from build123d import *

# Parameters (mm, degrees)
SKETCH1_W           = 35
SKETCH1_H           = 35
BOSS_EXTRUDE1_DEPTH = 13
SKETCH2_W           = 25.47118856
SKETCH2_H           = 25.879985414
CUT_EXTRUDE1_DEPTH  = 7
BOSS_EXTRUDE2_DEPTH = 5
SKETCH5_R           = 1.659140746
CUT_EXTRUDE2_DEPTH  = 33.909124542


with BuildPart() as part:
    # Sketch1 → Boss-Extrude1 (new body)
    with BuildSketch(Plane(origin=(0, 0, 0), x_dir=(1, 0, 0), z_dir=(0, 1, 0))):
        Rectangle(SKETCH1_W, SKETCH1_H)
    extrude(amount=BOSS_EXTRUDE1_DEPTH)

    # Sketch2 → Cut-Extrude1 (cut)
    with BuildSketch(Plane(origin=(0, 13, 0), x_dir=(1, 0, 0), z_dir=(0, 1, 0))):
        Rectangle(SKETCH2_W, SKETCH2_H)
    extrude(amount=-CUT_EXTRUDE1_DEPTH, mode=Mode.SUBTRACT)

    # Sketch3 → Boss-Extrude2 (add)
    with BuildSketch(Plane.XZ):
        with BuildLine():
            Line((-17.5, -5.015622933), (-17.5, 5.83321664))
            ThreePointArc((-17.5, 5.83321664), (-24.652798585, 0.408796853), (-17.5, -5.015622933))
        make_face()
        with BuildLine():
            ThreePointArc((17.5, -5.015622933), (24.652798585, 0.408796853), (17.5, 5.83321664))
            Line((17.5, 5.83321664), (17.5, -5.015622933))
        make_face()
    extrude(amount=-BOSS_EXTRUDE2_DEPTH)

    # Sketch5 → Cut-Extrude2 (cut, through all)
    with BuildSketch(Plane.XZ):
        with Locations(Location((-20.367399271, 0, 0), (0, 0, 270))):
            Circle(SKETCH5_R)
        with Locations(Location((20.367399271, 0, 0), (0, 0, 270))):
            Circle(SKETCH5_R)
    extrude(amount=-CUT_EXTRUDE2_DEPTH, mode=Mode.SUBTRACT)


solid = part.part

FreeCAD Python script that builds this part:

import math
import FreeCAD as App
import Part
import Sketcher

V = App.Vector
Q = App.Units.Quantity


def add_polygon(sketch, points):
    """Adds a closed chain of lines whose ends are joined by coincident constraints."""
    first, n = sketch.GeometryCount, len(points)
    for a, b in zip(points, points[1:] + points[:1]):
        sketch.addGeometry(Part.LineSegment(App.Vector(*a, 0), App.Vector(*b, 0)), False)
    for i in range(n):
        sketch.addConstraint(Sketcher.Constraint("Coincident", first + i, 2, first + (i + 1) % n, 1))

doc = App.newDocument("Part")
body = doc.addObject("PartDesign::Body", "Body")

# Sketch on XZ plane
sketch1 = body.newObject("Sketcher::SketchObject", "Sketch")
sketch1.AttachmentSupport = (doc.getObject("XZ_Plane"), [""])
sketch1.MapMode = "FlatFace"
add_polygon(sketch1, [(-17.5, -17.5), (-17.5, 17.5), (17.5, 17.5), (17.5, -17.5)])  # lines 0-3
sketch1.addConstraint([
    Sketcher.Constraint("Vertical", 0),
    Sketcher.Constraint("Horizontal", 1),
    Sketcher.Constraint("Vertical", 2),
    Sketcher.Constraint("Horizontal", 3),
    Sketcher.Constraint("Symmetric", 0, 2, 2, 2, -1, 1),
    Sketcher.Constraint("Equal", 3, 0),
    Sketcher.Constraint("DistanceX", 1, 1, 1, 2, Q("35 mm")),
])
pad1 = body.newObject("PartDesign::Pad", "Pad")
pad1.Profile = sketch1
pad1.Length = 13
pad1.Reversed = True

# Sketch on XZ plane
sketch2 = body.newObject("Sketcher::SketchObject", "Sketch001")
sketch2.AttachmentSupport = (doc.getObject("XZ_Plane"), [""])
sketch2.MapMode = "FlatFace"
sketch2.AttachmentOffset = App.Placement(V(0, 0, -13), App.Rotation())
add_polygon(sketch2, [(-12.735594, -12.939993), (-12.735594, 12.939993), (12.735594, 12.939993), (12.735594, -12.939993)])  # lines 0-3
sketch2.addConstraint([
    Sketcher.Constraint("Vertical", 0),
    Sketcher.Constraint("Horizontal", 1),
    Sketcher.Constraint("Vertical", 2),
    Sketcher.Constraint("Horizontal", 3),
    Sketcher.Constraint("Symmetric", 0, 2, 2, 2, -1, 1),
    Sketcher.Constraint("DistanceX", 1, 1, 1, 2, Q("25.471189 mm")),
    Sketcher.Constraint("DistanceY", 0, 1, 0, 2, Q("25.879985 mm")),
])
pocket1 = body.newObject("PartDesign::Pocket", "Pocket")
pocket1.Profile = sketch2
pocket1.Length = 7
pocket1.Reversed = True

# Sketch on XZ plane
sketch3 = body.newObject("Sketcher::SketchObject", "Sketch002")
sketch3.AttachmentSupport = (doc.getObject("XZ_Plane"), [""])
sketch3.MapMode = "FlatFace"
sketch3.addGeometry([
    Part.LineSegment(V(-17.5, -5.015623, 0), V(-17.5, 5.833217, 0)),
    Part.ArcOfCircle(Part.Circle(V(-19.019559, 0.408797, 0), V(0, 0, 1), 5.63324), math.radians(74.350688), math.radians(285.649312)),
    Part.ArcOfCircle(Part.Circle(V(19.019559, 0.408797, 0), V(0, 0, 1), 5.63324), math.radians(-105.649312), math.radians(105.649312)),
    Part.LineSegment(V(17.5, 5.833217, 0), V(17.5, -5.015623, 0)),
], False)
sketch3.addConstraint([
    Sketcher.Constraint("Coincident", 0, 1, 1, 2),
    Sketcher.Constraint("Coincident", 1, 1, 0, 2),
    Sketcher.Constraint("Coincident", 2, 1, 3, 2),
    Sketcher.Constraint("Coincident", 3, 1, 2, 2),
    Sketcher.Constraint("Vertical", 0),
    Sketcher.Constraint("Vertical", 3),
    Sketcher.Constraint("Equal", 1, 2),
    Sketcher.Constraint("Symmetric", 1, 3, 2, 3, -2),
    Sketcher.Constraint("Horizontal", 0, 1, 2, 1),
    Sketcher.Constraint("DistanceX", 0, 1, 2, 1, Q("35 mm")),
    Sketcher.Constraint("Radius", 1, Q("5.63324 mm")),
    Sketcher.Constraint("DistanceY", 0, 1, 0, 2, Q("10.84884 mm")),
    Sketcher.Constraint("DistanceY", -1, 1, 1, 3, Q("0.408797 mm")),
])
pad2 = body.newObject("PartDesign::Pad", "Pad001")
pad2.Profile = sketch3
pad2.Length = 5
pad2.Reversed = True

# Sketch on XZ plane
sketch4 = body.newObject("Sketcher::SketchObject", "Sketch003")
sketch4.AttachmentSupport = (doc.getObject("XZ_Plane"), [""])
sketch4.MapMode = "FlatFace"
sketch4.addGeometry([
    Part.Circle(V(-20.367399, 0, 0), V(0, 0, 1), 1.659141),
    Part.Circle(V(20.367399, 0, 0), V(0, 0, 1), 1.659141),
], False)
sketch4.addConstraint([
    Sketcher.Constraint("Equal", 0, 1),
    Sketcher.Constraint("Symmetric", 0, 3, 1, 3, -1, 1),
    Sketcher.Constraint("PointOnObject", 0, 3, -1),
    Sketcher.Constraint("Diameter", 0, Q("3.318281 mm")),
    Sketcher.Constraint("DistanceX", 0, 3, -1, 1, Q("20.367399 mm")),
])
pocket2 = body.newObject("PartDesign::Pocket", "Pocket001")
pocket2.Profile = sketch4
pocket2.Type = "ThroughAll"

doc.recompute()
